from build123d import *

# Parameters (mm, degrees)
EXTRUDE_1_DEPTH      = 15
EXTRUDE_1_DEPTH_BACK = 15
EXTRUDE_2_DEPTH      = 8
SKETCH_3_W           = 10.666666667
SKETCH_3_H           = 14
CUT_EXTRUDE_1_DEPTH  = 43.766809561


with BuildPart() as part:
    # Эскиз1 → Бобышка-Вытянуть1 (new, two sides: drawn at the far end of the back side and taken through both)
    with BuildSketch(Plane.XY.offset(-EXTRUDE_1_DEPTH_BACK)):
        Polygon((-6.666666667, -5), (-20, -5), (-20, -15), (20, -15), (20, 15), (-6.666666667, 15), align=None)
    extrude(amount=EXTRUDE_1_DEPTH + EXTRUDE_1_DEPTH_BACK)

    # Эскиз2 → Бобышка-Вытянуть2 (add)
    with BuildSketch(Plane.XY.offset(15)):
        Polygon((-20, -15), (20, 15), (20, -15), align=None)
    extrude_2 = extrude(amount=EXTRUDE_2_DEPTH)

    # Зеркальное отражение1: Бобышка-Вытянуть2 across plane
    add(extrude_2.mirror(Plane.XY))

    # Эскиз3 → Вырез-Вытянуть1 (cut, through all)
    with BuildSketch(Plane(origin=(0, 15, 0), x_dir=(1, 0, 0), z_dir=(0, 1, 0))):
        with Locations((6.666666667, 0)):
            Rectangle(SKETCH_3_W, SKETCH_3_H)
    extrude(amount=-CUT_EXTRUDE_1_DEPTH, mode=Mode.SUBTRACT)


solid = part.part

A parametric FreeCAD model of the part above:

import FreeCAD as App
import Part
import Sketcher

V = App.Vector


def add_polygon(sketch, points):
    """Adds a closed chain of lines whose ends are joined by coincident constraints."""
    first, n = sketch.GeometryCount, len(points)
    for a, b in zip(points, points[1:] + points[:1]):
        sketch.addGeometry(Part.LineSegment(App.Vector(*a, 0), App.Vector(*b, 0)), False)
    for i in range(n):
        sketch.addConstraint(Sketcher.Constraint("Coincident", first + i, 2, first + (i + 1) % n, 1))

doc = App.newDocument("Part")
params = doc.addObject("Spreadsheet::Sheet", "Params")
for row, (alias, value) in enumerate([
    ("sketch1_width", "40 mm"),
    ("sketch1_height", "10 mm"),
    ("sketch1_height2", "30 mm"),
    ("pad1_length", "15 mm"),
    ("pad1_length2", "15 mm"),
    ("sketch2_width", "40 mm"),
    ("sketch2_height", "30 mm"),
    ("pad2_length", "8 mm"),
    ("sketch3_height", "14 mm"),
], start=1):
    params.set(f"A{row}", alias)
    params.set(f"B{row}", "=" + value)
    params.setAlias(f"B{row}", alias)

body = doc.addObject("PartDesign::Body", "Body")

sketch1 = body.newObject("Sketcher::SketchObject", "Sketch")
sketch1.AttachmentSupport = (doc.getObject("XY_Plane"), [""])
sketch1.MapMode = "FlatFace"
add_polygon(sketch1, [(-7, -5), (-20, -5), (-20, -15), (20, -15), (20, 15), (-7, 15)])
sketch1.addConstraint(Sketcher.Constraint("Horizontal", 0))
sketch1.addConstraint(Sketcher.Constraint("Vertical", 1))
sketch1.addConstraint(Sketcher.Constraint("Horizontal", 2))
sketch1.addConstraint(Sketcher.Constraint("Vertical", 3))
sketch1.addConstraint(Sketcher.Constraint("Horizontal", 4))
sketch1.addConstraint(Sketcher.Constraint("Vertical", 5))
sketch1.addConstraint(Sketcher.Constraint("Symmetric", 1, 2, 3, 2, -1, 1))
sketch1.addConstraint(Sketcher.Constraint("DistanceX", 2, 1, 2, 2, 40.0))
sketch1.addConstraint(Sketcher.Constraint("DistanceY", 1, 2, 1, 1, 10.0))
sketch1.addConstraint(Sketcher.Constraint("DistanceY", 3, 1, 3, 2, 30.0))
sketch1.addConstraint(Sketcher.Constraint("DistanceX", 0, 2, 0, 1, 13.333333))
sketch1.setExpression("Constraints[13]", "Params.sketch1_width")
sketch1.setExpression("Constraints[14]", "Params.sketch1_height")
sketch1.setExpression("Constraints[15]", "Params.sketch1_height2")
pad1 = body.newObject("PartDesign::Pad", "Pad")
pad1.Profile = sketch1
pad1.Type = "TwoLengths"
pad1.setExpression("Length", "Params.pad1_length")
pad1.setExpression("Length2", "Params.pad1_length2")

sketch2 = body.newObject("Sketcher::SketchObject", "Sketch001")
sketch2.AttachmentSupport = (doc.getObject("XY_Plane"), [""])
sketch2.MapMode = "FlatFace"
sketch2.AttachmentOffset = App.Placement(V(0, 0, 15), App.Rotation())
add_polygon(sketch2, [(20, 15), (-20, -15), (20, -15)])
sketch2.addConstraint(Sketcher.Constraint("Horizontal", 1))
sketch2.addConstraint(Sketcher.Constraint("Vertical", 2))
sketch2.addConstraint(Sketcher.Constraint("Symmetric", 0, 2, 2, 2, -1, 1))
sketch2.addConstraint(Sketcher.Constraint("DistanceX", 1, 1, 1, 2, 40.0))
sketch2.addConstraint(Sketcher.Constraint("DistanceY", 2, 1, 2, 2, 30.0))
sketch2.setExpression("Constraints[6]", "Params.sketch2_width")
sketch2.setExpression("Constraints[7]", "Params.sketch2_height")
pad2 = body.newObject("PartDesign::Pad", "Pad001")
pad2.Profile = sketch2
pad2.setExpression("Length", "Params.pad2_length")
doc.recompute()

mirrored = body.newObject("PartDesign::Mirrored", "Mirrored")
mirrored.Originals = [pad2]
mirrored.MirrorPlane = (doc.getObject("XY_Plane"), [""])
body.Tip = mirrored

sketch3 = body.newObject("Sketcher::SketchObject", "Sketch002")
sketch3.AttachmentSupport = (doc.getObject("XZ_Plane"), [""])
sketch3.MapMode = "FlatFace"
sketch3.AttachmentOffset = App.Placement(V(0, 0, -15), App.Rotation())
add_polygon(sketch3, [(1, -7), (1, 7), (12, 7), (12, -7)])
sketch3.addConstraint(Sketcher.Constraint("Vertical", 0))
sketch3.addConstraint(Sketcher.Constraint("Horizontal", 1))
sketch3.addConstraint(Sketcher.Constraint("Vertical", 2))
sketch3.addConstraint(Sketcher.Constraint("Horizontal", 3))
sketch3.addConstraint(Sketcher.Constraint("DistanceY", 0, 1, 0, 2, 14.0))
sketch3.addConstraint(Sketcher.Constraint("DistanceY", -1, 1, 0, 2, 7.0))
sketch3.addConstraint(Sketcher.Constraint("DistanceX", -1, 1, 1, 2, 12.0))
sketch3.addConstraint(Sketcher.Constraint("DistanceX", 1, 1, 1, 2, 10.666667))
sketch3.setExpression("Constraints[8]", "Params.sketch3_height")
pocket1 = body.newObject("PartDesign::Pocket", "Pocket")
pocket1.Profile = sketch3
pocket1.Type = "ThroughAll"
pocket1.Reversed = True

doc.recompute()
